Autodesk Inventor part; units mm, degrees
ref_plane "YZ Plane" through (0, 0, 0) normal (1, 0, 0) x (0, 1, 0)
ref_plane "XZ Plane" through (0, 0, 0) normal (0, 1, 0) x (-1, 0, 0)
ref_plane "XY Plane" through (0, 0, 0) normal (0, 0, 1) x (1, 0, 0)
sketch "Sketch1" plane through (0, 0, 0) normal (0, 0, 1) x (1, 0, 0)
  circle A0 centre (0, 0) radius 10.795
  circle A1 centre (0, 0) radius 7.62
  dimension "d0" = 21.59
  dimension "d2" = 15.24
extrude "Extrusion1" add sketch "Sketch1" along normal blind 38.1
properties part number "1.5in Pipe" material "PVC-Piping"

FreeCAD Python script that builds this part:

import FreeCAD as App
import Part
import Sketcher

V = App.Vector
Q = App.Units.Quantity

doc = App.newDocument("Part")
body = doc.addObject("PartDesign::Body", "Body")

sketch1 = body.newObject("Sketcher::SketchObject", "Sketch")
sketch1.AttachmentSupport = (doc.getObject("XY_Plane"), [""])
sketch1.MapMode = "FlatFace"
sketch1.addGeometry([
    Part.Circle(V(0, 0, 0), V(0, 0, 1), 11),
    Part.Circle(V(0, 0, 0), V(0, 0, 1), 8),
], False)
sketch1.addConstraint([
    Sketcher.Constraint("Coincident", 0, 3, -1, 1),
    Sketcher.Constraint("Coincident", 1, 3, -1, 1),
    Sketcher.Constraint("Diameter", 1, Q("0.6 in")),
    Sketcher.Constraint("Diameter", 0, Q("0.85 in")),
])
pad1 = body.newObject("PartDesign::Pad", "Pad")
pad1.Profile = sketch1
pad1.Length = Q("1.5 in")

doc.recompute()
